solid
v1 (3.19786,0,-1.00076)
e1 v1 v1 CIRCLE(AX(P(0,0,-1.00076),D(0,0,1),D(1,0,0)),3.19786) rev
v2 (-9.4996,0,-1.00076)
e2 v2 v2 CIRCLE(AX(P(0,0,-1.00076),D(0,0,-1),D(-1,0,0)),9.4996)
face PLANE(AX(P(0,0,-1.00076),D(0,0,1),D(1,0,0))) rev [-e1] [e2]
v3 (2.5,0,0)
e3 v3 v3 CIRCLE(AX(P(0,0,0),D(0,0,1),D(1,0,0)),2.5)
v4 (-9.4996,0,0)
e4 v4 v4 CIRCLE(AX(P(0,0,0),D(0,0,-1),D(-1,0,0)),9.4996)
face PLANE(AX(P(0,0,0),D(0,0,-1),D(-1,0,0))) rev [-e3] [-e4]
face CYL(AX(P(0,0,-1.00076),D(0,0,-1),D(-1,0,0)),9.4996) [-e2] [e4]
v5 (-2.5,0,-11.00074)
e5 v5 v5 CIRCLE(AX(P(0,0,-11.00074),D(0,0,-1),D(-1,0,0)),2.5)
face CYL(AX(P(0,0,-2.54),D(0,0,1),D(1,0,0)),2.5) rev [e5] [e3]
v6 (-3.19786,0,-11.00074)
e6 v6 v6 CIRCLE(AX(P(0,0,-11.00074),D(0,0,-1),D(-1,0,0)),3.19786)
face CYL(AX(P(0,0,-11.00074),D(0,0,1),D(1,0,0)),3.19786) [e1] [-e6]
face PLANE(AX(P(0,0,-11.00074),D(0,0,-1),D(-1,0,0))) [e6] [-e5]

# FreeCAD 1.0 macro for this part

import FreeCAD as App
import Part
import Sketcher
from FreeCAD import Vector
Q = App.Units.Quantity

doc = App.newDocument("Part")
body = doc.addObject("PartDesign::Body", "Body")

sketch1 = body.newObject("Sketcher::SketchObject", "Sketch")
sketch1.AttachmentSupport = (doc.getObject("YZ_Plane"), [""])
sketch1.MapMode = "FlatFace"
sketch1.addGeometry([
    Part.LineSegment(Vector(9.4996, 0, 0), Vector(0, 0, 0)),
    Part.LineSegment(Vector(0, 0, 0), Vector(0, -1.00076, 0)),
    Part.LineSegment(Vector(0, -1.00076, 0), Vector(9.4996, -1.00076, 0)),
    Part.LineSegment(Vector(9.4996, -1.00076, 0), Vector(9.4996, 0, 0)),
], False)
sketch1.addConstraint([
    Sketcher.Constraint("Coincident", 0, 2, 1, 1),
    Sketcher.Constraint("Coincident", 1, 2, 2, 1),
    Sketcher.Constraint("Coincident", 2, 2, 3, 1),
    Sketcher.Constraint("Coincident", 3, 2, 0, 1),
    Sketcher.Constraint("Horizontal", 0),
    Sketcher.Constraint("Vertical", 1),
    Sketcher.Constraint("Horizontal", 2),
    Sketcher.Constraint("Vertical", 3),
    Sketcher.Constraint("Coincident", 0, 2, -1, 1),
    Sketcher.Constraint("DistanceX", 0, 2, 0, 1, Q("0.374 in")),
    Sketcher.Constraint("DistanceY", 1, 2, 1, 1, Q("0.0394 in")),
])
revolution = body.newObject("PartDesign::Revolution", "Revolution")
revolution.Profile = sketch1
revolution.ReferenceAxis = (sketch1, ["V_Axis"])
revolution.Angle = 360

sketch2 = body.newObject("Sketcher::SketchObject", "Sketch001")
sketch2.AttachmentSupport = (doc.getObject("XY_Plane"), [""])
sketch2.MapMode = "FlatFace"
sketch2.addGeometry(Part.Circle(Vector(0, 0, 0), Vector(0, 0, 1), 2.5), False)
sketch2.addConstraint([
    Sketcher.Constraint("Coincident", 0, 3, -1, 1),
    Sketcher.Constraint("Diameter", 0, Q("5 mm")),
])
pocket1 = body.newObject("PartDesign::Pocket", "Pocket")
pocket1.Profile = sketch2
pocket1.Length = Q("0.1 in")

sketch3 = body.newObject("Sketcher::SketchObject", "Sketch002")
sketch3.AttachmentSupport = (doc.getObject("XY_Plane"), [""])
sketch3.MapMode = "FlatFace"
sketch3.AttachmentOffset = App.Placement(Vector(0, 0, -0.0394 * 25.4), App.Rotation())
sketch3.addGeometry([
    Part.Circle(Vector(0, 0, 0), Vector(0, 0, 1), 3.19786),
    Part.Circle(Vector(0, 0, 0), Vector(0, 0, 1), 2.5),
], False)
sketch3.addConstraint([
    Sketcher.Constraint("Coincident", 0, 3, -1, 1),
    Sketcher.Constraint("Coincident", 1, 3, -1, 1),
    Sketcher.Constraint("Diameter", 0, Q("0.2518 in")),
    Sketcher.Constraint("Diameter", 1, Q("5 mm")),
])
pad1 = body.newObject("PartDesign::Pad", "Pad")
pad1.Profile = sketch3
pad1.Length = Q("0.3937 in")
pad1.Reversed = True

doc.recompute()
